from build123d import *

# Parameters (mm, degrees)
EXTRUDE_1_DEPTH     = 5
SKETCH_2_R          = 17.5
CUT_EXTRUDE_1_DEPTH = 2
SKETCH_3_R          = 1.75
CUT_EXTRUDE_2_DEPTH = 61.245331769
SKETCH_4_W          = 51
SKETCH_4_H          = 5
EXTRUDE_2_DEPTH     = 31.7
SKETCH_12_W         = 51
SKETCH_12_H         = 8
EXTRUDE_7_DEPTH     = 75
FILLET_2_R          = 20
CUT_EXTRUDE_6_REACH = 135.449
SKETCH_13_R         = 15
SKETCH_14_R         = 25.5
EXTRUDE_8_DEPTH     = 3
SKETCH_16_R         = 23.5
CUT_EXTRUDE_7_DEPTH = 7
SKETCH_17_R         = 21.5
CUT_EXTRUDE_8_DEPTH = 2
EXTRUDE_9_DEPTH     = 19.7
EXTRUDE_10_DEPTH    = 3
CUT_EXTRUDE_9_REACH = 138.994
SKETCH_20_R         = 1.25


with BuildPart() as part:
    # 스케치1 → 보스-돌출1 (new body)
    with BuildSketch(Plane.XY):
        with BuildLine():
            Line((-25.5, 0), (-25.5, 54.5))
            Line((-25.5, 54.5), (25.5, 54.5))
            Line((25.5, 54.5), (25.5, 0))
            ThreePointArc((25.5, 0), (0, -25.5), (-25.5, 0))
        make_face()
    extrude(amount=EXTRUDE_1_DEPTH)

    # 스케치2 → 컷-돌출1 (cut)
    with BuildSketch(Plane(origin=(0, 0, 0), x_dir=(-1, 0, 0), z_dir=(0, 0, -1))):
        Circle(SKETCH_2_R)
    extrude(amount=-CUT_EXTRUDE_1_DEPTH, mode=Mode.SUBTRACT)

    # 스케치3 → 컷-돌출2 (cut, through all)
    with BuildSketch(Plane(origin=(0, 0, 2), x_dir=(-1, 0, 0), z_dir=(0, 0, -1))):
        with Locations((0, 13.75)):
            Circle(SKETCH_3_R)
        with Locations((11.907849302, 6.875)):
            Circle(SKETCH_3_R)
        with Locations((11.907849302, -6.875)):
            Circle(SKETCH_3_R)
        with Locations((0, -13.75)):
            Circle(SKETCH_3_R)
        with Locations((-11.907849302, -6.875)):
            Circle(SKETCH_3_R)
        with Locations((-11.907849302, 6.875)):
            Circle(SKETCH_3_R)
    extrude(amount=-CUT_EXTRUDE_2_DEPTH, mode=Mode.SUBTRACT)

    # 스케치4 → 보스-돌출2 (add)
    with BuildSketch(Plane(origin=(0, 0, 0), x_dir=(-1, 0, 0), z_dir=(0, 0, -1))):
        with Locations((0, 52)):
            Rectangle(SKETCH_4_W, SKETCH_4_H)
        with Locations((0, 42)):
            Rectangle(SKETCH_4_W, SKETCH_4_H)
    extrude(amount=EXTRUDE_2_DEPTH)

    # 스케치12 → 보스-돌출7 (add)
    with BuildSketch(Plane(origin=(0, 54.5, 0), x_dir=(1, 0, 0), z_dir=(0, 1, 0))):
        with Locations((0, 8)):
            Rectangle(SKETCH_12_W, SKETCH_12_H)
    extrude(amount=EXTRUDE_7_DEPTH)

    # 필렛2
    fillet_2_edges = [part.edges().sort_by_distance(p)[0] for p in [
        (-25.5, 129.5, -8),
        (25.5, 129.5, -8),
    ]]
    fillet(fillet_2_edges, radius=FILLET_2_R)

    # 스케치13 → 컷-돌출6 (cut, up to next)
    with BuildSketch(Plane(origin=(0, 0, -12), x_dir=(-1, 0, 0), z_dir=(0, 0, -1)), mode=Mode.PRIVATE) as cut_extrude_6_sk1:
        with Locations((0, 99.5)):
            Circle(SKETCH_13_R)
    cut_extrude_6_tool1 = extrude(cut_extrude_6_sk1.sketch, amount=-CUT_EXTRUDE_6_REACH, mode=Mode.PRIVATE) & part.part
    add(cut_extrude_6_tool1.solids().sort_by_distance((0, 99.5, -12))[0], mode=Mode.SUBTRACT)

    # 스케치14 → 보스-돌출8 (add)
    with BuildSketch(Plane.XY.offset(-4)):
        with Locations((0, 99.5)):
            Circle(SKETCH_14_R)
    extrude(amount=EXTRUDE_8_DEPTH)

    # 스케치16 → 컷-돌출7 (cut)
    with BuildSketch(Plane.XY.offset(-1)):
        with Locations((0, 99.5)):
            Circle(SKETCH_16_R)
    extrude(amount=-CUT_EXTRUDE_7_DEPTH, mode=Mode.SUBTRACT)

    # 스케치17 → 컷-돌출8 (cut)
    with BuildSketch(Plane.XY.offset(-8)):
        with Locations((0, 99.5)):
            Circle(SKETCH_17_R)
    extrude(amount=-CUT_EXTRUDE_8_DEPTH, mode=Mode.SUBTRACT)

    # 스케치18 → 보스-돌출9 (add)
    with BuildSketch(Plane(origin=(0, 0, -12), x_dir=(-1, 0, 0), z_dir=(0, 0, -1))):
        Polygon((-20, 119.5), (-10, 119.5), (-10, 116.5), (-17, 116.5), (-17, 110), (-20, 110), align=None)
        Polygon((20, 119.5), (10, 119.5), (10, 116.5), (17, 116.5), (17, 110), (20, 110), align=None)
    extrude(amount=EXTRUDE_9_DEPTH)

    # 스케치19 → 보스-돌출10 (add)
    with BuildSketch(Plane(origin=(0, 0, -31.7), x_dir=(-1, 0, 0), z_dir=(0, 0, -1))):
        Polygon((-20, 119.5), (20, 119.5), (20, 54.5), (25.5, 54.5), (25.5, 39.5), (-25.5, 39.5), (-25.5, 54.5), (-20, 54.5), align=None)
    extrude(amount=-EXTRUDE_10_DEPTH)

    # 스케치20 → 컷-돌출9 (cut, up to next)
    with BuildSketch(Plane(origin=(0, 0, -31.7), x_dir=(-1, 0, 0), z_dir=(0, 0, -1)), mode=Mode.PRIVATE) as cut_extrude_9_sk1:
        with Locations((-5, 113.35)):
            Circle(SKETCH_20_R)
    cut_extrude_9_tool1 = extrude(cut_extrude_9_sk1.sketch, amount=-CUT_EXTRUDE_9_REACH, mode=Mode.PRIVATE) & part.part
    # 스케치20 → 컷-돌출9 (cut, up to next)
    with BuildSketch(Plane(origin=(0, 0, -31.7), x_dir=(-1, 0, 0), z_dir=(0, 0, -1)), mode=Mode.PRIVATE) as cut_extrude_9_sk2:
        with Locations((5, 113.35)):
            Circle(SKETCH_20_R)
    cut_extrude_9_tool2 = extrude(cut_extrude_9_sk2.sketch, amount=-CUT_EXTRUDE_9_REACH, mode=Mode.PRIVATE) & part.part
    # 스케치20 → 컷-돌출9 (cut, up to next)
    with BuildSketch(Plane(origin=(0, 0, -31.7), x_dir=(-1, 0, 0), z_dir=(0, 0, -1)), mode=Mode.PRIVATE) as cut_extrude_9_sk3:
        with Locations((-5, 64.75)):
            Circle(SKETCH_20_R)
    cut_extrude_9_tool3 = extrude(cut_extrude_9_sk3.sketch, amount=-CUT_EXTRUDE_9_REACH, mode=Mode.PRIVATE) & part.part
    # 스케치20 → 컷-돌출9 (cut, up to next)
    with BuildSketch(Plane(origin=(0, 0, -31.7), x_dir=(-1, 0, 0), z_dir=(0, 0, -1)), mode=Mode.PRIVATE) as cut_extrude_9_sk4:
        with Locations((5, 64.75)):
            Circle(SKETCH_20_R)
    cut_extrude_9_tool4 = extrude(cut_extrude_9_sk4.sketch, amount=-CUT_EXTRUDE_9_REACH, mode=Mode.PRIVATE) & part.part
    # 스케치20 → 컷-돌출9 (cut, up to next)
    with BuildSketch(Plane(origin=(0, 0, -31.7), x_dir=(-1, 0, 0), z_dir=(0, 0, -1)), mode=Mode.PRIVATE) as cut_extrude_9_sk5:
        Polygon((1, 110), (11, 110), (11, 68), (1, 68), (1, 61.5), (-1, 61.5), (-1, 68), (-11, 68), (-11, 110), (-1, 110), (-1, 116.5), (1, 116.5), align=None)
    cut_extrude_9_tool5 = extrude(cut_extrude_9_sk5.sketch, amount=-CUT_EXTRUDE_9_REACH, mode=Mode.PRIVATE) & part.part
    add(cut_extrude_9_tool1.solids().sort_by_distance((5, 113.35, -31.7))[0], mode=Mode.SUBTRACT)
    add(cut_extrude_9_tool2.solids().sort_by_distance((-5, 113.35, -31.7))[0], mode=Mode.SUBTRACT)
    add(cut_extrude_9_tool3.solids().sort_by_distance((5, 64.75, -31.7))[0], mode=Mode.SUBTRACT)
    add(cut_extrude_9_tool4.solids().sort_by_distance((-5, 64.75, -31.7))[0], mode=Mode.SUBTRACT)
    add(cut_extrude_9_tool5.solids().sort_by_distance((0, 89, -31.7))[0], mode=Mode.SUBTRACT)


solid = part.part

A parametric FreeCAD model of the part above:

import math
import FreeCAD as App
import Part
import Sketcher

V = App.Vector


def edges_at(feature, points):
    """Names of the edges that pass closest to the given points."""
    edges = feature.Shape.Edges
    near = lambda p: min(range(len(edges)), key=lambda i: edges[i].distToShape(Part.Vertex(*p))[0])
    return sorted({f"Edge{near(p) + 1}" for p in points})


def add_polygon(sketch, points):
    """Adds a closed chain of lines whose ends are joined by coincident constraints."""
    first, n = sketch.GeometryCount, len(points)
    for a, b in zip(points, points[1:] + points[:1]):
        sketch.addGeometry(Part.LineSegment(App.Vector(*a, 0), App.Vector(*b, 0)), False)
    for i in range(n):
        sketch.addConstraint(Sketcher.Constraint("Coincident", first + i, 2, first + (i + 1) % n, 1))

doc = App.newDocument("Part")
body = doc.addObject("PartDesign::Body", "Body")

sketch1 = body.newObject("Sketcher::SketchObject", "Sketch")
sketch1.AttachmentSupport = (doc.getObject("XY_Plane"), [""])
sketch1.MapMode = "FlatFace"
sketch1.addGeometry([
    Part.LineSegment(V(-25.5, 54.5, 0), V(-25.5, 0, 0)),
    Part.ArcOfCircle(Part.Circle(V(0, 0, 0), V(0, 0, 1), 25.5), math.radians(180), math.radians(360)),
    Part.LineSegment(V(25.5, 0, 0), V(25.5, 54.5, 0)),
    Part.LineSegment(V(25.5, 54.5, 0), V(-25.5, 54.5, 0)),
], False)
sketch1.addConstraint([
    Sketcher.Constraint("Tangent", 0, 2, 1, 1),
    Sketcher.Constraint("Tangent", 1, 2, 2, 1),
    Sketcher.Constraint("Coincident", 2, 2, 3, 1),
    Sketcher.Constraint("Coincident", 3, 2, 0, 1),
    Sketcher.Constraint("Vertical", 0),
    Sketcher.Constraint("Vertical", 2),
    Sketcher.Constraint("Horizontal", 3),
    Sketcher.Constraint("Coincident", 1, 3, -1, 1),
    Sketcher.Constraint("Radius", 1, 25.5),
    Sketcher.Constraint("DistanceY", 0, 2, 0, 1, 54.5),
])
pad1 = body.newObject("PartDesign::Pad", "Pad")
pad1.Profile = sketch1
pad1.Length = 5

sketch2 = body.newObject("Sketcher::SketchObject", "Sketch001")
sketch2.AttachmentSupport = (doc.getObject("XY_Plane"), [""])
sketch2.MapMode = "FlatFace"
sketch2.addGeometry(Part.Circle(V(0, 0, 0), V(0, 0, 1), 17.5), False)
sketch2.addConstraint([
    Sketcher.Constraint("Coincident", 0, 3, -1, 1),
    Sketcher.Constraint("Diameter", 0, 35.0),
])
pocket1 = body.newObject("PartDesign::Pocket", "Pocket")
pocket1.Profile = sketch2
pocket1.Length = 2
pocket1.Reversed = True

sketch3 = body.newObject("Sketcher::SketchObject", "Sketch002")
sketch3.AttachmentSupport = (doc.getObject("XY_Plane"), [""])
sketch3.MapMode = "FlatFace"
sketch3.AttachmentOffset = App.Placement(V(0, 0, 2), App.Rotation())
sketch3.addGeometry([
    Part.Circle(V(0, 13.75, 0), V(0, 0, 1), 1.75),
    Part.Circle(V(-11.907849, 6.875, 0), V(0, 0, 1), 1.75),
    Part.Circle(V(-11.907849, -6.875, 0), V(0, 0, 1), 1.75),
    Part.Circle(V(0, -13.75, 0), V(0, 0, 1), 1.75),
    Part.Circle(V(11.907849, -6.875, 0), V(0, 0, 1), 1.75),
    Part.Circle(V(11.907849, 6.875, 0), V(0, 0, 1), 1.75),
], False)
sketch3.addConstraint([
    Sketcher.Constraint("Equal", 0, 1),
    Sketcher.Constraint("Equal", 1, 2),
    Sketcher.Constraint("Equal", 2, 3),
    Sketcher.Constraint("Equal", 3, 4),
    Sketcher.Constraint("Equal", 4, 5),
    Sketcher.Constraint("Symmetric", 0, 3, 3, 3, -1, 1),
    Sketcher.Constraint("Symmetric", 1, 3, 4, 3, -1, 1),
    Sketcher.Constraint("Symmetric", 2, 3, 5, 3, -1, 1),
    Sketcher.Constraint("Symmetric", 2, 3, 4, 3, -2),
    Sketcher.Constraint("PointOnObject", 0, 3, -2),
    Sketcher.Constraint("Diameter", 0, 3.5),
    Sketcher.Constraint("DistanceY", 3, 3, 0, 3, 27.5),
    Sketcher.Constraint("DistanceY", 2, 3, 1, 3, 13.75),
    Sketcher.Constraint("DistanceX", 2, 3, 4, 3, 23.815699),
])
pocket2 = body.newObject("PartDesign::Pocket", "Pocket001")
pocket2.Profile = sketch3
pocket2.Type = "ThroughAll"
pocket2.Reversed = True

sketch4 = body.newObject("Sketcher::SketchObject", "Sketch003")
sketch4.AttachmentSupport = (doc.getObject("XY_Plane"), [""])
sketch4.MapMode = "FlatFace"
add_polygon(sketch4, [(25.5, 54.5), (25.5, 49.5), (-25.5, 49.5), (-25.5, 54.5)])
add_polygon(sketch4, [(25.5, 44.5), (25.5, 39.5), (-25.5, 39.5), (-25.5, 44.5)])
sketch4.addConstraint([
    Sketcher.Constraint("Vertical", 0),
    Sketcher.Constraint("Horizontal", 1),
    Sketcher.Constraint("Vertical", 2),
    Sketcher.Constraint("Horizontal", 3),
    Sketcher.Constraint("Vertical", 4),
    Sketcher.Constraint("Horizontal", 5),
    Sketcher.Constraint("Vertical", 6),
    Sketcher.Constraint("Horizontal", 7),
    Sketcher.Constraint("Vertical", 3, 2, 4, 2),
    Sketcher.Constraint("Vertical", 2, 2, 5, 2),
    Sketcher.Constraint("Equal", 2, 4),
    Sketcher.Constraint("DistanceX", 1, 2, 1, 1, 51.0),
    Sketcher.Constraint("DistanceY", 0, 2, 0, 1, 5.0),
    Sketcher.Constraint("DistanceY", 4, 2, 0, 2, 10.0),
    Sketcher.Constraint("DistanceX", -1, 1, 0, 2, 25.5),
    Sketcher.Constraint("DistanceY", -1, 1, 0, 2, 49.5),
])
pad2 = body.newObject("PartDesign::Pad", "Pad001")
pad2.Profile = sketch4
pad2.Length = 31.7
pad2.Reversed = True

sketch5 = body.newObject("Sketcher::SketchObject", "Sketch004")
sketch5.AttachmentSupport = (doc.getObject("XZ_Plane"), [""])
sketch5.MapMode = "FlatFace"
sketch5.AttachmentOffset = App.Placement(V(0, 0, -54.5), App.Rotation())
add_polygon(sketch5, [(-25.5, -12), (-25.5, -4), (25.5, -4), (25.5, -12)])
sketch5.addConstraint([
    Sketcher.Constraint("Vertical", 0),
    Sketcher.Constraint("Horizontal", 1),
    Sketcher.Constraint("Vertical", 2),
    Sketcher.Constraint("Horizontal", 3),
    Sketcher.Constraint("DistanceX", 1, 1, 1, 2, 51.0),
    Sketcher.Constraint("DistanceY", 0, 1, 0, 2, 8.0),
    Sketcher.Constraint("DistanceY", 0, 2, -1, 1, 4.0),
    Sketcher.Constraint("DistanceX", 0, 2, -1, 1, 25.5),
])
pad3 = body.newObject("PartDesign::Pad", "Pad002")
pad3.Profile = sketch5
pad3.Length = 75
pad3.Reversed = True
doc.recompute()

fillet = body.newObject("PartDesign::Fillet", "Fillet")
fillet.Base = (pad3, edges_at(pad3, [(-25.5, 129.5, -8), (25.5, 129.5, -8)]))
fillet.Radius = 20

sketch6 = body.newObject("Sketcher::SketchObject", "Sketch005")
sketch6.AttachmentSupport = (doc.getObject("XY_Plane"), [""])
sketch6.MapMode = "FlatFace"
sketch6.AttachmentOffset = App.Placement(V(0, 0, -12), App.Rotation())
sketch6.addGeometry(Part.Circle(V(0, 99.5, 0), V(0, 0, 1), 15), False)
sketch6.addConstraint([
    Sketcher.Constraint("PointOnObject", 0, 3, -2),
    Sketcher.Constraint("Diameter", 0, 30.0),
    Sketcher.Constraint("DistanceY", -1, 1, 0, 3, 99.5),
])
pocket3 = body.newObject("PartDesign::Pocket", "Pocket002")
pocket3.Profile = sketch6
pocket3.Type = "UpToFirst"
pocket3.Reversed = True

sketch7 = body.newObject("Sketcher::SketchObject", "Sketch006")
sketch7.AttachmentSupport = (doc.getObject("XY_Plane"), [""])
sketch7.MapMode = "FlatFace"
sketch7.AttachmentOffset = App.Placement(V(0, 0, -4), App.Rotation())
sketch7.addGeometry(Part.Circle(V(0, 99.5, 0), V(0, 0, 1), 25.5), False)
sketch7.addConstraint([
    Sketcher.Constraint("PointOnObject", 0, 3, -2),
    Sketcher.Constraint("Diameter", 0, 51.0),
    Sketcher.Constraint("DistanceY", -1, 1, 0, 3, 99.5),
])
pad4 = body.newObject("PartDesign::Pad", "Pad003")
pad4.Profile = sketch7
pad4.Length = 3

sketch8 = body.newObject("Sketcher::SketchObject", "Sketch007")
sketch8.AttachmentSupport = (doc.getObject("XY_Plane"), [""])
sketch8.MapMode = "FlatFace"
sketch8.AttachmentOffset = App.Placement(V(0, 0, -1), App.Rotation())
sketch8.addGeometry(Part.Circle(V(0, 99.5, 0), V(0, 0, 1), 23.5), False)
sketch8.addConstraint([
    Sketcher.Constraint("PointOnObject", 0, 3, -2),
    Sketcher.Constraint("Diameter", 0, 47.0),
    Sketcher.Constraint("DistanceY", -1, 1, 0, 3, 99.5),
])
pocket4 = body.newObject("PartDesign::Pocket", "Pocket003")
pocket4.Profile = sketch8
pocket4.Length = 7

sketch9 = body.newObject("Sketcher::SketchObject", "Sketch008")
sketch9.AttachmentSupport = (doc.getObject("XY_Plane"), [""])
sketch9.MapMode = "FlatFace"
sketch9.AttachmentOffset = App.Placement(V(0, 0, -8), App.Rotation())
sketch9.addGeometry(Part.Circle(V(0, 99.5, 0), V(0, 0, 1), 21.5), False)
sketch9.addConstraint([
    Sketcher.Constraint("PointOnObject", 0, 3, -2),
    Sketcher.Constraint("Diameter", 0, 43.0),
    Sketcher.Constraint("DistanceY", -1, 1, 0, 3, 99.5),
])
pocket5 = body.newObject("PartDesign::Pocket", "Pocket004")
pocket5.Profile = sketch9
pocket5.Length = 2

sketch10 = body.newObject("Sketcher::SketchObject", "Sketch009")
sketch10.AttachmentSupport = (doc.getObject("XY_Plane"), [""])
sketch10.MapMode = "FlatFace"
sketch10.AttachmentOffset = App.Placement(V(0, 0, -12), App.Rotation())
add_polygon(sketch10, [(10, 119.5), (20, 119.5), (20, 110), (17, 110), (17, 116.5), (10, 116.5)])
add_polygon(sketch10, [(-20, 119.5), (-10, 119.5), (-10, 116.5), (-17, 116.5), (-17, 110), (-20, 110)])
sketch10.addConstraint([
    Sketcher.Constraint("Horizontal", 0),
    Sketcher.Constraint("Vertical", 1),
    Sketcher.Constraint("Horizontal", 2),
    Sketcher.Constraint("Vertical", 3),
    Sketcher.Constraint("Horizontal", 4),
    Sketcher.Constraint("Vertical", 5),
    Sketcher.Constraint("Horizontal", 6),
    Sketcher.Constraint("Vertical", 7),
    Sketcher.Constraint("Horizontal", 8),
    Sketcher.Constraint("Vertical", 9),
    Sketcher.Constraint("Horizontal", 10),
    Sketcher.Constraint("Vertical", 11),
    Sketcher.Constraint("Symmetric", 5, 2, 6, 2, -2),
    Sketcher.Constraint("Symmetric", 3, 2, 8, 2, -2),
    Sketcher.Constraint("Symmetric", 1, 2, 10, 2, -2),
    Sketcher.Constraint("Equal", 10, 5),
    Sketcher.Constraint("DistanceX", 0, 1, 0, 2, 10.0),
    Sketcher.Constraint("DistanceX", 2, 2, 2, 1, 3.0),
    Sketcher.Constraint("DistanceY", 1, 2, 1, 1, 9.5),
    Sketcher.Constraint("DistanceX", -1, 1, 0, 2, 20.0),
    Sketcher.Constraint("DistanceY", -1, 1, 1, 2, 110.0),
])
pad5 = body.newObject("PartDesign::Pad", "Pad004")
pad5.Profile = sketch10
pad5.Length = 19.7
pad5.Reversed = True

sketch11 = body.newObject("Sketcher::SketchObject", "Sketch010")
sketch11.AttachmentSupport = (doc.getObject("XY_Plane"), [""])
sketch11.MapMode = "FlatFace"
sketch11.AttachmentOffset = App.Placement(V(0, 0, -31.7), App.Rotation())
add_polygon(sketch11, [(-20, 119.5), (20, 119.5), (20, 54.5), (25.5, 54.5), (25.5, 39.5), (-25.5, 39.5), (-25.5, 54.5), (-20, 54.5)])
sketch11.addConstraint([
    Sketcher.Constraint("Horizontal", 0),
    Sketcher.Constraint("Vertical", 1),
    Sketcher.Constraint("Horizontal", 2),
    Sketcher.Constraint("Vertical", 3),
    Sketcher.Constraint("Horizontal", 4),
    Sketcher.Constraint("Vertical", 5),
    Sketcher.Constraint("Horizontal", 6),
    Sketcher.Constraint("Vertical", 7),
    Sketcher.Constraint("Symmetric", 2, 2, 5, 2, -2),
    Sketcher.Constraint("Equal", 2, 6),
    Sketcher.Constraint("DistanceX", 0, 1, 0, 2, 40.0),
    Sketcher.Constraint("DistanceX", 4, 2, 4, 1, 51.0),
    Sketcher.Constraint("DistanceY", 1, 2, 1, 1, 65.0),
    Sketcher.Constraint("DistanceY", 3, 2, 3, 1, 15.0),
    Sketcher.Constraint("DistanceY", -1, 1, 0, 2, 119.5),
])
pad6 = body.newObject("PartDesign::Pad", "Pad005")
pad6.Profile = sketch11
pad6.Length = 3

sketch12 = body.newObject("Sketcher::SketchObject", "Sketch011")
sketch12.AttachmentSupport = (doc.getObject("XY_Plane"), [""])
sketch12.MapMode = "FlatFace"
sketch12.AttachmentOffset = App.Placement(V(0, 0, -31.7), App.Rotation())
sketch12.addGeometry(Part.Circle(V(5, 113.35, 0), V(0, 0, 1), 1.25), False)
sketch12.addConstraint([
    Sketcher.Constraint("Diameter", 0, 2.5),
    Sketcher.Constraint("DistanceX", -1, 1, 0, 3, 5.0),
    Sketcher.Constraint("DistanceY", -1, 1, 0, 3, 113.35),
])
pocket6 = body.newObject("PartDesign::Pocket", "Pocket005")
pocket6.Profile = sketch12
pocket6.Type = "UpToFirst"
pocket6.Reversed = True

sketch13 = body.newObject("Sketcher::SketchObject", "Sketch012")
sketch13.AttachmentSupport = (doc.getObject("XY_Plane"), [""])
sketch13.MapMode = "FlatFace"
sketch13.AttachmentOffset = App.Placement(V(0, 0, -31.7), App.Rotation())
sketch13.addGeometry(Part.Circle(V(-5, 113.35, 0), V(0, 0, 1), 1.25), False)
sketch13.addConstraint([
    Sketcher.Constraint("Diameter", 0, 2.5),
    Sketcher.Constraint("DistanceX", 0, 3, -1, 1, 5.0),
    Sketcher.Constraint("DistanceY", -1, 1, 0, 3, 113.35),
])
pocket7 = body.newObject("PartDesign::Pocket", "Pocket006")
pocket7.Profile = sketch13
pocket7.Type = "UpToFirst"
pocket7.Reversed = True

sketch14 = body.newObject("Sketcher::SketchObject", "Sketch013")
sketch14.AttachmentSupport = (doc.getObject("XY_Plane"), [""])
sketch14.MapMode = "FlatFace"
sketch14.AttachmentOffset = App.Placement(V(0, 0, -31.7), App.Rotation())
sketch14.addGeometry(Part.Circle(V(5, 64.75, 0), V(0, 0, 1), 1.25), False)
sketch14.addConstraint([
    Sketcher.Constraint("Diameter", 0, 2.5),
    Sketcher.Constraint("DistanceX", -1, 1, 0, 3, 5.0),
    Sketcher.Constraint("DistanceY", -1, 1, 0, 3, 64.75),
])
pocket8 = body.newObject("PartDesign::Pocket", "Pocket007")
pocket8.Profile = sketch14
pocket8.Type = "UpToFirst"
pocket8.Reversed = True

sketch15 = body.newObject("Sketcher::SketchObject", "Sketch014")
sketch15.AttachmentSupport = (doc.getObject("XY_Plane"), [""])
sketch15.MapMode = "FlatFace"
sketch15.AttachmentOffset = App.Placement(V(0, 0, -31.7), App.Rotation())
sketch15.addGeometry(Part.Circle(V(-5, 64.75, 0), V(0, 0, 1), 1.25), False)
sketch15.addConstraint([
    Sketcher.Constraint("Diameter", 0, 2.5),
    Sketcher.Constraint("DistanceX", 0, 3, -1, 1, 5.0),
    Sketcher.Constraint("DistanceY", -1, 1, 0, 3, 64.75),
])
pocket9 = body.newObject("PartDesign::Pocket", "Pocket008")
pocket9.Profile = sketch15
pocket9.Type = "UpToFirst"
pocket9.Reversed = True

sketch16 = body.newObject("Sketcher::SketchObject", "Sketch015")
sketch16.AttachmentSupport = (doc.getObject("XY_Plane"), [""])
sketch16.MapMode = "FlatFace"
sketch16.AttachmentOffset = App.Placement(V(0, 0, -31.7), App.Rotation())
add_polygon(sketch16, [(-11, 110), (-1, 110), (-1, 116.5), (1, 116.5), (1, 110), (11, 110), (11, 68), (1, 68), (1, 61.5), (-1, 61.5), (-1, 68), (-11, 68)])
sketch16.addConstraint([
    Sketcher.Constraint("Horizontal", 0),
    Sketcher.Constraint("Vertical", 1),
    Sketcher.Constraint("Horizontal", 2),
    Sketcher.Constraint("Vertical", 3),
    Sketcher.Constraint("Horizontal", 4),
    Sketcher.Constraint("Vertical", 5),
    Sketcher.Constraint("Horizontal", 6),
    Sketcher.Constraint("Vertical", 7),
    Sketcher.Constraint("Horizontal", 8),
    Sketcher.Constraint("Vertical", 9),
    Sketcher.Constraint("Horizontal", 10),
    Sketcher.Constraint("Vertical", 11),
    Sketcher.Constraint("Symmetric", 0, 2, 3, 2, -2),
    Sketcher.Constraint("Symmetric", 6, 2, 9, 2, -2),
    Sketcher.Constraint("Vertical", 3, 2, 6, 2),
    Sketcher.Constraint("Equal", 0, 4),
    Sketcher.Constraint("Equal", 3, 7),
    Sketcher.Constraint("DistanceX", 0, 1, 0, 2, 10.0),
    Sketcher.Constraint("DistanceX", 2, 1, 2, 2, 2.0),
    Sketcher.Constraint("DistanceY", 5, 2, 5, 1, 42.0),
    Sketcher.Constraint("DistanceY", 1, 1, 1, 2, 6.5),
    Sketcher.Constraint("DistanceY", -1, 1, 0, 2, 110.0),
])
pocket10 = body.newObject("PartDesign::Pocket", "Pocket009")
pocket10.Profile = sketch16
pocket10.Type = "UpToFirst"
pocket10.Reversed = True

doc.recompute()
